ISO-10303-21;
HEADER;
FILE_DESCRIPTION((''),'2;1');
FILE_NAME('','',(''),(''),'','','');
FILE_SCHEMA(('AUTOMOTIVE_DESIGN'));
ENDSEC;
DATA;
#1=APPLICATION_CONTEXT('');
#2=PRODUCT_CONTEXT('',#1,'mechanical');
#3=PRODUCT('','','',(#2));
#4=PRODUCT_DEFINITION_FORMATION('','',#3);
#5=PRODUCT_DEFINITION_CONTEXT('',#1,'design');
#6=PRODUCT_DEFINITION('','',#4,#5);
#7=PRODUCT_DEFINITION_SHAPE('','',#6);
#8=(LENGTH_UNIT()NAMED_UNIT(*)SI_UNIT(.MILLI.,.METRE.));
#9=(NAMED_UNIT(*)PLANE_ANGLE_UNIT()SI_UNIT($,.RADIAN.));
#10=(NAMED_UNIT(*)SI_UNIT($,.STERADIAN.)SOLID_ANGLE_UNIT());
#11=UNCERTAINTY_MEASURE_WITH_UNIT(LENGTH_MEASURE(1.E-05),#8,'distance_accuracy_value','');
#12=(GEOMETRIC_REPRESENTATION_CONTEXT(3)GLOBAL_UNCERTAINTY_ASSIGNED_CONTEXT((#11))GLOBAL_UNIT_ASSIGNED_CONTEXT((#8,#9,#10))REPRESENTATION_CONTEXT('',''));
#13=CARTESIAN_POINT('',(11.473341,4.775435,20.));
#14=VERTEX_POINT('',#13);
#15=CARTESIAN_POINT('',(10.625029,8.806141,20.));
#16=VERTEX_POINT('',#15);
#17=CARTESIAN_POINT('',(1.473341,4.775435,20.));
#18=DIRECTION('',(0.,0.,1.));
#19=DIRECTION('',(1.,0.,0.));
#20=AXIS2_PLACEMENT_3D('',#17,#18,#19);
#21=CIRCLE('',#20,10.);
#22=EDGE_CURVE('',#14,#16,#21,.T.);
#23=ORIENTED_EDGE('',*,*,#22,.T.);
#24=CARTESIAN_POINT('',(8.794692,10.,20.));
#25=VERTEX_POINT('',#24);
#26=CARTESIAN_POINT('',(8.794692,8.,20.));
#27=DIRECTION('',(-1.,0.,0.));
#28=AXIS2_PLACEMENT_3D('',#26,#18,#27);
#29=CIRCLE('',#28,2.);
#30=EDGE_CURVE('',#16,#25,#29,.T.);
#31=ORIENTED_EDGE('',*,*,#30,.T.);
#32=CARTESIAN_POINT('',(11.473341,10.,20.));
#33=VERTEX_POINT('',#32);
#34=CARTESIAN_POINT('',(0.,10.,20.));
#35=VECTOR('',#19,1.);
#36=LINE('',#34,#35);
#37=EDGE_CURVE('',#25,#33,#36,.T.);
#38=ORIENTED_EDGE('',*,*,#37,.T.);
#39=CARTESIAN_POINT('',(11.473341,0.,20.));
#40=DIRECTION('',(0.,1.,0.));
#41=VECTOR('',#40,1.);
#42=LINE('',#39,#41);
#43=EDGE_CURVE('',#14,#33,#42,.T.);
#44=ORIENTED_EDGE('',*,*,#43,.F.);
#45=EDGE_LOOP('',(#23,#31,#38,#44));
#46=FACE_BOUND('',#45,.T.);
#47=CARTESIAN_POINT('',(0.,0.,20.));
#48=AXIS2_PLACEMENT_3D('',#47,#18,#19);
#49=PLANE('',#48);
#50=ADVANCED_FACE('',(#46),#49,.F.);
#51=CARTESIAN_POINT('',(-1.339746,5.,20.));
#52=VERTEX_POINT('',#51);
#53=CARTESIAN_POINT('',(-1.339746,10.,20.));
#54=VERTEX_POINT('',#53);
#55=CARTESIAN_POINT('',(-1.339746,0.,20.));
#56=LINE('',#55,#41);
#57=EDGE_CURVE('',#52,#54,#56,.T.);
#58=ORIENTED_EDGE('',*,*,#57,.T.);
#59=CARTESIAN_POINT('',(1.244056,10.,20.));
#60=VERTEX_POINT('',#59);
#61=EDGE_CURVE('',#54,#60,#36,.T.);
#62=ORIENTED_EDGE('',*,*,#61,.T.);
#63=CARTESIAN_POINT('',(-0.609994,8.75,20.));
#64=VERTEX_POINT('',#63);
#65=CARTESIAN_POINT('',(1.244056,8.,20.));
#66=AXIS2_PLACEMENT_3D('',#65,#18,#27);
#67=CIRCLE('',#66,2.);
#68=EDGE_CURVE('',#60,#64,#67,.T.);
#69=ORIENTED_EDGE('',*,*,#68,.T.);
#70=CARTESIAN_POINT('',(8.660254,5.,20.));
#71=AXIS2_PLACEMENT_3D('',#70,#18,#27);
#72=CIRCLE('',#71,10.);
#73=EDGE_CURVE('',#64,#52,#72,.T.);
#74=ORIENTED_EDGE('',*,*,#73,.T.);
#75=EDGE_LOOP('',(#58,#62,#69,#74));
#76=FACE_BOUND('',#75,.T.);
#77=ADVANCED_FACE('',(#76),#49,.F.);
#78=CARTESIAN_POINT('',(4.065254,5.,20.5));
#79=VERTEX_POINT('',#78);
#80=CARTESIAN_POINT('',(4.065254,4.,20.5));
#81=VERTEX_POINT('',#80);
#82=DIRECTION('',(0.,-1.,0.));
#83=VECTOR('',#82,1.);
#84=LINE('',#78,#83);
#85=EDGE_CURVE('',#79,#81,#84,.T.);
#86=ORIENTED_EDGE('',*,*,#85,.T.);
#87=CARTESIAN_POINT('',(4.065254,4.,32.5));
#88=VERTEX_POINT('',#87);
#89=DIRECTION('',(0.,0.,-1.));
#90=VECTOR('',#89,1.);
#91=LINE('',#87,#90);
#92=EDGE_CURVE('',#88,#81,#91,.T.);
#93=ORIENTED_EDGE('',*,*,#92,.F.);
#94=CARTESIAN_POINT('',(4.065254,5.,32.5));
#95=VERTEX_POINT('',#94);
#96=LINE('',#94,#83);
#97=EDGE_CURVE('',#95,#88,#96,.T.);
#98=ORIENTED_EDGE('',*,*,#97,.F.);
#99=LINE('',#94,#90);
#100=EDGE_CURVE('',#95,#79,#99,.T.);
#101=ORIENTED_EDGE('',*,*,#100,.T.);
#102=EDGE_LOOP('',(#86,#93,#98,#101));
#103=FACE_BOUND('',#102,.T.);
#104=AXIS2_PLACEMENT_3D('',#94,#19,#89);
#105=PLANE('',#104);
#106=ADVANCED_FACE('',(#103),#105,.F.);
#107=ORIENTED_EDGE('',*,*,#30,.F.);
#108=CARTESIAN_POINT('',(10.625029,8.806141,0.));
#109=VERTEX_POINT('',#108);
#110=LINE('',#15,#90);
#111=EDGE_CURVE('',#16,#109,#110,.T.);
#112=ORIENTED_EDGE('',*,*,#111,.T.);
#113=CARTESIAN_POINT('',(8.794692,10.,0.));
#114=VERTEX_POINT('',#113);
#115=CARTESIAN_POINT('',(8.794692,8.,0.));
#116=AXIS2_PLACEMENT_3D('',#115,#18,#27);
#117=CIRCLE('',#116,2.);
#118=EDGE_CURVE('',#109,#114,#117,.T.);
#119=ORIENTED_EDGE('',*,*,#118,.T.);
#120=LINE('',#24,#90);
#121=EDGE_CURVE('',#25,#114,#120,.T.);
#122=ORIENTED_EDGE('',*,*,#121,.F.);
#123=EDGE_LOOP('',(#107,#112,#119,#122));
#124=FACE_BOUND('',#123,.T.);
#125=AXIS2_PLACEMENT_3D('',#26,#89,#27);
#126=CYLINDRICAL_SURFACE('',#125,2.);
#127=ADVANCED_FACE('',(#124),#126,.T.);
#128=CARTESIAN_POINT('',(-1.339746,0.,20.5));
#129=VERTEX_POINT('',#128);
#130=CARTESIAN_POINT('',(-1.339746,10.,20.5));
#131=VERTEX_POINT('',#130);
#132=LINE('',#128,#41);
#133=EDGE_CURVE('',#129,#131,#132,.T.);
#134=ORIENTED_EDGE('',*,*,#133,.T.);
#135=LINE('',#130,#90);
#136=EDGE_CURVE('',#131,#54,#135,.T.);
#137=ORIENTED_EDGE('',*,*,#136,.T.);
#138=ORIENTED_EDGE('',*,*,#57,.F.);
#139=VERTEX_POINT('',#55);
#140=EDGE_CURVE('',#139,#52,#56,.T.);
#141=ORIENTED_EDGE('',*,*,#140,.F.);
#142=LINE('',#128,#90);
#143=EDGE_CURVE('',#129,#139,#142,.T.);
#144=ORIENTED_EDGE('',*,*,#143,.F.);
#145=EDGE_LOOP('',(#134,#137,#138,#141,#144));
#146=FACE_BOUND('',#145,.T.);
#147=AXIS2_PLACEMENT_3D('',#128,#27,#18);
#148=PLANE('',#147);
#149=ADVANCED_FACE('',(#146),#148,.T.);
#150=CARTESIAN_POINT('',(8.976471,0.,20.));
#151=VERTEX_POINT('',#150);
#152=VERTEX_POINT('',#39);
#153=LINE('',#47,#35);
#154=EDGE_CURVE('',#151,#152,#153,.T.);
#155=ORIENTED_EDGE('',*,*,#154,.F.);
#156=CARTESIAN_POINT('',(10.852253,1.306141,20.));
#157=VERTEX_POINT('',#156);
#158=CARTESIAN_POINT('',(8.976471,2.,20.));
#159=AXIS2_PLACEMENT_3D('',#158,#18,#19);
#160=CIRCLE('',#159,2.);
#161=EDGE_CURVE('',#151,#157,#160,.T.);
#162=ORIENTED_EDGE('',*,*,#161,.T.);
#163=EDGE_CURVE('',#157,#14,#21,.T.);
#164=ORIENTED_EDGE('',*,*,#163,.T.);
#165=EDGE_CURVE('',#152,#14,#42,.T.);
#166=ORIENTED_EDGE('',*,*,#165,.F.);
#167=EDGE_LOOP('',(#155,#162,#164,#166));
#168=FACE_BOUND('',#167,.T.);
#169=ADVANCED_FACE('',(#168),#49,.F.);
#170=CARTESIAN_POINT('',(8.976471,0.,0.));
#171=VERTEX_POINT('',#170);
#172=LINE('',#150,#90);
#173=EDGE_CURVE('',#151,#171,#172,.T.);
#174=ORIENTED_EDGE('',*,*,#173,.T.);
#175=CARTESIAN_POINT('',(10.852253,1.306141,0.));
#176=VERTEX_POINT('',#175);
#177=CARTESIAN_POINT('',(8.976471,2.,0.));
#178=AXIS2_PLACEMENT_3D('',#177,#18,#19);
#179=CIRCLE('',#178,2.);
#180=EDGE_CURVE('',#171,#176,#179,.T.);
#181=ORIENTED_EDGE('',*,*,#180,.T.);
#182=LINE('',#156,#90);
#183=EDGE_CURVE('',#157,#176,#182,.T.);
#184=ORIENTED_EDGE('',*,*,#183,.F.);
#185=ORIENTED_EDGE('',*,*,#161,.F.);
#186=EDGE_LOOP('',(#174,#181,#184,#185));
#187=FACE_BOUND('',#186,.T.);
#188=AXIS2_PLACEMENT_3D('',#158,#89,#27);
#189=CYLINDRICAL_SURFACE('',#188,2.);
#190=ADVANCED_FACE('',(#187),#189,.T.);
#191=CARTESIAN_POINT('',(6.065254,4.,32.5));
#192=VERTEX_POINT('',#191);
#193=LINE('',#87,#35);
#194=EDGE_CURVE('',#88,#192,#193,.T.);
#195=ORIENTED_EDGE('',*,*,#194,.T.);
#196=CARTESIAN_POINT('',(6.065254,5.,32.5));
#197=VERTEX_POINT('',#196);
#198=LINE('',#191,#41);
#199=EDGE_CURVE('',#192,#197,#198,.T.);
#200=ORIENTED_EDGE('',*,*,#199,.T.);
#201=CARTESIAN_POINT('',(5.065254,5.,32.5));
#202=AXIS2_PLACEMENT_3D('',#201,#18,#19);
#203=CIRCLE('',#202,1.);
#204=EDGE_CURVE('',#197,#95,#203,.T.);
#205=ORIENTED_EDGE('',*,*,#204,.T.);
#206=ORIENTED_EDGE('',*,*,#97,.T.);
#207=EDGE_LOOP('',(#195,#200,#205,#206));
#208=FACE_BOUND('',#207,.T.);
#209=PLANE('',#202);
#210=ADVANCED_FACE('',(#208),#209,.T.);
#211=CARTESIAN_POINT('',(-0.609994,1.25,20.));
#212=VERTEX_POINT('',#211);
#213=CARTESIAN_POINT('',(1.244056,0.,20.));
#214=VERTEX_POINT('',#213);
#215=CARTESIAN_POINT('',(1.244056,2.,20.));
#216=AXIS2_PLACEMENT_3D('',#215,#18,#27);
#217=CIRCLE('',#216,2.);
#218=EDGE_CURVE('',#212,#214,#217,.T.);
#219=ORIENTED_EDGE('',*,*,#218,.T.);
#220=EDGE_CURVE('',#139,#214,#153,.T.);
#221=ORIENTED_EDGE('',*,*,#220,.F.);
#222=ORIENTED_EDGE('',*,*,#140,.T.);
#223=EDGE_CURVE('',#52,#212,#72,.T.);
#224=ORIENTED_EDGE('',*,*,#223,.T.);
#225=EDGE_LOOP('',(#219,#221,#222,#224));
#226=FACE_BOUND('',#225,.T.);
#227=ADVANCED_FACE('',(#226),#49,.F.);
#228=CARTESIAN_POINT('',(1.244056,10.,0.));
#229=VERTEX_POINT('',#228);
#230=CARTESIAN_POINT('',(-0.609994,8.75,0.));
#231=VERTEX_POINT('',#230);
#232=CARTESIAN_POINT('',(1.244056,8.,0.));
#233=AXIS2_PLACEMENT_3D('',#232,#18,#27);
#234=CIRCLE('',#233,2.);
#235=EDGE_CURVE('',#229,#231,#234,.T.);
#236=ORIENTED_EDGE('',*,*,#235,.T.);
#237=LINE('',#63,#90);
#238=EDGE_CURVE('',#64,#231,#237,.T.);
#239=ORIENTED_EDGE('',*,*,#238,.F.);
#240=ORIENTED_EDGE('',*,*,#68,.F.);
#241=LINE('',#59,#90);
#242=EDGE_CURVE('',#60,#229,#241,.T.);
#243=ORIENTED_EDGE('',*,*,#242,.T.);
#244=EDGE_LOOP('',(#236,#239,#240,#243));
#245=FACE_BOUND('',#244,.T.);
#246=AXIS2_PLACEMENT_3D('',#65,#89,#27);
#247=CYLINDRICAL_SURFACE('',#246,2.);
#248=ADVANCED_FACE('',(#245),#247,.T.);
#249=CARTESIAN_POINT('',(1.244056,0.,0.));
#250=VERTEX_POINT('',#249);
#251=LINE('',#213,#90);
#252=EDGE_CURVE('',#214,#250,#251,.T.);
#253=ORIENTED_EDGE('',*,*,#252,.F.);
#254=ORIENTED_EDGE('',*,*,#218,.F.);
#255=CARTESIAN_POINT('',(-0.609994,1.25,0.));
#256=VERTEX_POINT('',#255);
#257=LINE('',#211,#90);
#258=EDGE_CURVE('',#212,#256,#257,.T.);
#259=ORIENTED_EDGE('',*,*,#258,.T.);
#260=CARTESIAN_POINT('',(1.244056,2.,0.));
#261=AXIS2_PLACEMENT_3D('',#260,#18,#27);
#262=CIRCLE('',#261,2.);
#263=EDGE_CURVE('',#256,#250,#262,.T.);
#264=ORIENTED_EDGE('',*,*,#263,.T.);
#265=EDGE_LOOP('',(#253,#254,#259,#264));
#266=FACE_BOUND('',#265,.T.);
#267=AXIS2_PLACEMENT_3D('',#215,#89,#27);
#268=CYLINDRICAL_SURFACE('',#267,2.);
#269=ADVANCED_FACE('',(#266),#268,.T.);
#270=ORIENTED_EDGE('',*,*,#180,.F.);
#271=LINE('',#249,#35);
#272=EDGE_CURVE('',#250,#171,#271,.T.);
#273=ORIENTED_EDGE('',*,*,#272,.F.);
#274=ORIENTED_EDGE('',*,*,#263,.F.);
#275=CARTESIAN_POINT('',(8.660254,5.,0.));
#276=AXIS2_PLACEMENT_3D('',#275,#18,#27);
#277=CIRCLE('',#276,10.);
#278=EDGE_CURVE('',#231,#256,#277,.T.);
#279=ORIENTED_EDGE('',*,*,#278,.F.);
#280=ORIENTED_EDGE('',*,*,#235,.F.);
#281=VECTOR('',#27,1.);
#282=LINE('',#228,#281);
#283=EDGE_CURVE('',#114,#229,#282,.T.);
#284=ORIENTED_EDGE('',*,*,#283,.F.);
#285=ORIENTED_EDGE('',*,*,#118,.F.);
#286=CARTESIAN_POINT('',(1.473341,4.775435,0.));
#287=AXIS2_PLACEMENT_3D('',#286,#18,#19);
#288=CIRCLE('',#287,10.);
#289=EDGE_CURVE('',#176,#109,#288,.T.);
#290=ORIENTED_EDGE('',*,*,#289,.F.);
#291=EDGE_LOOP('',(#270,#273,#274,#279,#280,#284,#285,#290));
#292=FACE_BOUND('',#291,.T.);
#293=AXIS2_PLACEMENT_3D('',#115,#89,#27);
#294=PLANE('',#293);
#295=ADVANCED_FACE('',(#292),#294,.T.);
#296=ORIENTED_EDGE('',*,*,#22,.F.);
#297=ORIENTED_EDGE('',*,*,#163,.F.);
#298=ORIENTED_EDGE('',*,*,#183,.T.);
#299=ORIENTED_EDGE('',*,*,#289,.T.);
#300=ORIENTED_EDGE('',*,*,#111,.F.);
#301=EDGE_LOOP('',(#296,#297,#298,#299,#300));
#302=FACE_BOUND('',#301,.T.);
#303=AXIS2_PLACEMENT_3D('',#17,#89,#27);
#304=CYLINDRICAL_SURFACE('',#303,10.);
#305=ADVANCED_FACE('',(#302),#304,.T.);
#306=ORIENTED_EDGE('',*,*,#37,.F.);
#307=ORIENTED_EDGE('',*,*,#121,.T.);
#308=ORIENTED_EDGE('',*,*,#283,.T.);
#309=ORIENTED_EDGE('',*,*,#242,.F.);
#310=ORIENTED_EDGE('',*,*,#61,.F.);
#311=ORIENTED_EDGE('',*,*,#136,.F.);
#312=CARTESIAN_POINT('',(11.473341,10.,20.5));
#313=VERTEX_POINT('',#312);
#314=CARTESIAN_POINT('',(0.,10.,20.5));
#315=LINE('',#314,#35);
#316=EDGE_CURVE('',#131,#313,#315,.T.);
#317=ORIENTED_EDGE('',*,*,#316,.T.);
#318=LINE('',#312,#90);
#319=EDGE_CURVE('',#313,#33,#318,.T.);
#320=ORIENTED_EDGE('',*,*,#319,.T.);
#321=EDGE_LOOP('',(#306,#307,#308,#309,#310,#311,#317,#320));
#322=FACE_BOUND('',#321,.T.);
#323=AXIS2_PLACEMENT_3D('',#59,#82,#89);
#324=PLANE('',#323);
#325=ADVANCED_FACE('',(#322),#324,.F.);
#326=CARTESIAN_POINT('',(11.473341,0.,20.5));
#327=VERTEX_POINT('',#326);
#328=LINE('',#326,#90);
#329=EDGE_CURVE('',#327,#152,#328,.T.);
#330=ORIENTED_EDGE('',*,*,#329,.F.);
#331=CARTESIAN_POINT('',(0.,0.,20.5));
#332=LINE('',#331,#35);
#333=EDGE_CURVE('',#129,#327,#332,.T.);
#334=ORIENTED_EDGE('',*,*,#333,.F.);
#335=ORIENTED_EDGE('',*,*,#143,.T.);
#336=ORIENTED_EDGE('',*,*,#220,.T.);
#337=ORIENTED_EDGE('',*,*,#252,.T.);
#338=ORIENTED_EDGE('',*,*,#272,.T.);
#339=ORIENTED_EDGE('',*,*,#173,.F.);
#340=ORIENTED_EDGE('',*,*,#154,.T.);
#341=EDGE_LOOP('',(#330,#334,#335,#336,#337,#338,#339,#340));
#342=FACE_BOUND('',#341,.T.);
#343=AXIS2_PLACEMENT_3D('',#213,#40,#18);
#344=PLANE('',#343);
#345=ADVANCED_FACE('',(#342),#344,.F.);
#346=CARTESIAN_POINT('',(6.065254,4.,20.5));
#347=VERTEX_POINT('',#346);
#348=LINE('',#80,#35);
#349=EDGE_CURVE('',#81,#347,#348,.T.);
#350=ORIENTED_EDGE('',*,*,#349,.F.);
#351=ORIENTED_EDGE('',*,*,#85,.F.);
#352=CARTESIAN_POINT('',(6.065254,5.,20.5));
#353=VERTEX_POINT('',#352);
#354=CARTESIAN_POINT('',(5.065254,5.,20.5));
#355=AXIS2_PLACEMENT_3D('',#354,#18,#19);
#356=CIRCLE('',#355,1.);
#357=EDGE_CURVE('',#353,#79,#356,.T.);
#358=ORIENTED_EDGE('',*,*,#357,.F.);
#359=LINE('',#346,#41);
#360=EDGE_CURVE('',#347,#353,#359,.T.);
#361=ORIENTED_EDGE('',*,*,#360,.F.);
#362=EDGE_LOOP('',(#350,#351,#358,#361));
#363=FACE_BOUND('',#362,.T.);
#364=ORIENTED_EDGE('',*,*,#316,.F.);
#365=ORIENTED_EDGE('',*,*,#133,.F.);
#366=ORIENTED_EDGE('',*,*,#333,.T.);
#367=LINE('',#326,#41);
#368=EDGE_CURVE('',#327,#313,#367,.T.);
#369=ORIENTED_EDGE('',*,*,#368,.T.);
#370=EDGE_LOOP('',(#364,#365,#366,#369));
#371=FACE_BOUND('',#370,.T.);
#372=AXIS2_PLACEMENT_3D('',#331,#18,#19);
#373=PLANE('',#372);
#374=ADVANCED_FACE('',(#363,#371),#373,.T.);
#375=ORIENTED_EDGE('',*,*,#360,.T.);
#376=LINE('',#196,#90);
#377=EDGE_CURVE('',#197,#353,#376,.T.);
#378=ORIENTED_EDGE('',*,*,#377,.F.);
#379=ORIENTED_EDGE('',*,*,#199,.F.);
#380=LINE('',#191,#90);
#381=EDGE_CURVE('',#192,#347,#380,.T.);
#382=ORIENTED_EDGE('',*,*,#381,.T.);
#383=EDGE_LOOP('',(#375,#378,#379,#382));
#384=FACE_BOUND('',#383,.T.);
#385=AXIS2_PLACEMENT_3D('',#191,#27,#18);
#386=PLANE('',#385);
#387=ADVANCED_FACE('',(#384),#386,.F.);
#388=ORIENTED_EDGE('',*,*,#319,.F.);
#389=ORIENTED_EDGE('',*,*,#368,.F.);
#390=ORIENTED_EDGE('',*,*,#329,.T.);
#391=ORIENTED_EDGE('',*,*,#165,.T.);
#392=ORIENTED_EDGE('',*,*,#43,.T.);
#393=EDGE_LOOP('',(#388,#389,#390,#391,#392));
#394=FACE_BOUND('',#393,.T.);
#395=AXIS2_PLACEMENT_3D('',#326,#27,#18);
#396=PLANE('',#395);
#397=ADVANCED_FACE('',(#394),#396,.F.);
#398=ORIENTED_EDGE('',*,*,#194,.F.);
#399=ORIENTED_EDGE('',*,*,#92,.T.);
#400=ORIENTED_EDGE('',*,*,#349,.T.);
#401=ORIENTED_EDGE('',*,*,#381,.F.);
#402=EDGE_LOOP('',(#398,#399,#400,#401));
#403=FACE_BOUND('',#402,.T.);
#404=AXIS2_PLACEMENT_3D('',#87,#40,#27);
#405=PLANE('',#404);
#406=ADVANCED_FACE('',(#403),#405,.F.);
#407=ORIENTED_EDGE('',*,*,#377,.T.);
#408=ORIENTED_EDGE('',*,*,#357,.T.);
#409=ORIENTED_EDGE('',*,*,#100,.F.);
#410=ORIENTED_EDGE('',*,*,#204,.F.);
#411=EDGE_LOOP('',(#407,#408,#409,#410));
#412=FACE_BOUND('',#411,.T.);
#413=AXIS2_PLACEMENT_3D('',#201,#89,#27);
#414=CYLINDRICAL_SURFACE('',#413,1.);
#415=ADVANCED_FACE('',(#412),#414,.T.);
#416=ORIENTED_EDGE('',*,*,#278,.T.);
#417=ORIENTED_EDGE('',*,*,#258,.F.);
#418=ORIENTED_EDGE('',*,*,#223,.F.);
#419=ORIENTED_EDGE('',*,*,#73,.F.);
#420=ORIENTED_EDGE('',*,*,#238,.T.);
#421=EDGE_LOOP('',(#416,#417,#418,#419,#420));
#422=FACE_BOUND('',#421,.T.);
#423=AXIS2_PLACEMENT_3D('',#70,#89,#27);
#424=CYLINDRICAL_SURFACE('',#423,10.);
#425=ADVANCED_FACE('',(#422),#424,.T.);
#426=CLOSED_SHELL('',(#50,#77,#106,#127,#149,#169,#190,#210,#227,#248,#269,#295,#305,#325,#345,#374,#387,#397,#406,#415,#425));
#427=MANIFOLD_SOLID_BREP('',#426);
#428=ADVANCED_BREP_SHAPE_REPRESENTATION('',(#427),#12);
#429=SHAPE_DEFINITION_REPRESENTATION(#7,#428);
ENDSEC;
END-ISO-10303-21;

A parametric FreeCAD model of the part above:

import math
import FreeCAD as App
import Part
import Sketcher
Q = App.Units.Quantity

doc = App.newDocument("Part")
body = doc.addObject("PartDesign::Body", "Body")

# Sketch on XY plane
sketch1 = body.newObject("Sketcher::SketchObject", "Sketch")
sketch1.AttachmentSupport = (doc.getObject("XY_Plane"), [""])
sketch1.MapMode = "FlatFace"
sketch1.addGeometry(Part.LineSegment(App.Vector(1.244056, 0, 0), App.Vector(8.976471, 0, 0)), False)
sketch1.addGeometry(Part.ArcOfCircle(Part.Circle(App.Vector(8.976471, 2, 0), App.Vector(0, 0, 1), 2), math.radians(-90), math.radians(-20.299616)), False)
sketch1.addGeometry(Part.ArcOfCircle(Part.Circle(App.Vector(1.473341, 4.775435, 0), App.Vector(0, 0, 1), 10), math.radians(-20.299616), math.radians(23.770279)), False)
sketch1.addGeometry(Part.ArcOfCircle(Part.Circle(App.Vector(8.794692, 8, 0), App.Vector(0, 0, 1), 2), math.radians(23.770279), math.radians(90)), False)
sketch1.addGeometry(Part.LineSegment(App.Vector(8.794692, 10, 0), App.Vector(1.244056, 10, 0)), False)
sketch1.addGeometry(Part.ArcOfCircle(Part.Circle(App.Vector(1.244056, 8, 0), App.Vector(0, 0, 1), 2), math.radians(90), math.radians(157.975687)), False)
sketch1.addGeometry(Part.ArcOfCircle(Part.Circle(App.Vector(8.660254, 5, 0), App.Vector(0, 0, 1), 10), math.radians(157.975687), math.radians(202.024313)), False)
sketch1.addGeometry(Part.ArcOfCircle(Part.Circle(App.Vector(1.244056, 2, 0), App.Vector(0, 0, 1), 2), math.radians(-157.975687), math.radians(-90)), False)
sketch1.addConstraint(Sketcher.Constraint("Tangent", 0, 2, 1, 1))
sketch1.addConstraint(Sketcher.Constraint("Tangent", 1, 2, 2, 1))
sketch1.addConstraint(Sketcher.Constraint("Tangent", 2, 2, 3, 1))
sketch1.addConstraint(Sketcher.Constraint("Tangent", 3, 2, 4, 1))
sketch1.addConstraint(Sketcher.Constraint("Tangent", 4, 2, 5, 1))
sketch1.addConstraint(Sketcher.Constraint("Tangent", 5, 2, 6, 1))
sketch1.addConstraint(Sketcher.Constraint("Tangent", 6, 2, 7, 1))
sketch1.addConstraint(Sketcher.Constraint("Tangent", 7, 2, 0, 1))
sketch1.addConstraint(Sketcher.Constraint("Horizontal", 0))
sketch1.addConstraint(Sketcher.Constraint("Horizontal", 4))
sketch1.addConstraint(Sketcher.Constraint("Equal", 1, 3))
sketch1.addConstraint(Sketcher.Constraint("Equal", 3, 5))
sketch1.addConstraint(Sketcher.Constraint("Equal", 2, 6))
sketch1.addConstraint(Sketcher.Constraint("Equal", 5, 7))
sketch1.addConstraint(Sketcher.Constraint("PointOnObject", 0, 2, -1))
sketch1.addConstraint(Sketcher.Constraint("Vertical", 5, 3, 7, 3))
sketch1.addConstraint(Sketcher.Constraint("Radius", 1, Q("2 mm")))
sketch1.addConstraint(Sketcher.Constraint("Radius", 2, Q("10 mm")))
sketch1.addConstraint(Sketcher.Constraint("DistanceY", -1, 1, 3, 3, Q("8 mm")))
sketch1.addConstraint(Sketcher.Constraint("DistanceX", 6, 3, 1, 2, Q("2.191999 mm")))
sketch1.addConstraint(Sketcher.Constraint("DistanceX", 0, 1, 0, 2, Q("7.732415 mm")))
sketch1.addConstraint(Sketcher.Constraint("DistanceX", -1, 1, 1, 3, Q("8.976471 mm")))
pad1 = body.newObject("PartDesign::Pad", "Pad")
pad1.Profile = sketch1
pad1.Length = 20

# Sketch on XY plane
sketch2 = body.newObject("Sketcher::SketchObject", "Sketch001")
sketch2.AttachmentSupport = (doc.getObject("XY_Plane"), [""])
sketch2.MapMode = "FlatFace"
sketch2.AttachmentOffset = App.Placement(App.Vector(0, 0, 20), App.Rotation())
sketch2.addGeometry(Part.LineSegment(App.Vector(-1.339746, 0, 0), App.Vector(11.473341, 0, 0)), False)
sketch2.addGeometry(Part.LineSegment(App.Vector(11.473341, 0, 0), App.Vector(11.473341, 10, 0)), False)
sketch2.addGeometry(Part.LineSegment(App.Vector(11.473341, 10, 0), App.Vector(-1.339746, 10, 0)), False)
sketch2.addGeometry(Part.LineSegment(App.Vector(-1.339746, 10, 0), App.Vector(-1.339746, 0, 0)), False)
sketch2.addConstraint(Sketcher.Constraint("Coincident", 0, 2, 1, 1))
sketch2.addConstraint(Sketcher.Constraint("Coincident", 1, 2, 2, 1))
sketch2.addConstraint(Sketcher.Constraint("Coincident", 2, 2, 3, 1))
sketch2.addConstraint(Sketcher.Constraint("Coincident", 3, 2, 0, 1))
sketch2.addConstraint(Sketcher.Constraint("Horizontal", 0))
sketch2.addConstraint(Sketcher.Constraint("Vertical", 1))
sketch2.addConstraint(Sketcher.Constraint("Horizontal", 2))
sketch2.addConstraint(Sketcher.Constraint("Vertical", 3))
sketch2.addConstraint(Sketcher.Constraint("PointOnObject", 0, 2, -1))
sketch2.addConstraint(Sketcher.Constraint("DistanceY", 1, 1, 1, 2, Q("10 mm")))
sketch2.addConstraint(Sketcher.Constraint("DistanceX", 0, 1, 0, 2, Q("12.813087 mm")))
sketch2.addConstraint(Sketcher.Constraint("DistanceX", -1, 1, 0, 2, Q("11.473341 mm")))
pad2 = body.newObject("PartDesign::Pad", "Pad001")
pad2.Profile = sketch2
pad2.Length = 0.5

# Sketch on XY plane
sketch3 = body.newObject("Sketcher::SketchObject", "Sketch002")
sketch3.AttachmentSupport = (doc.getObject("XY_Plane"), [""])
sketch3.MapMode = "FlatFace"
sketch3.AttachmentOffset = App.Placement(App.Vector(0, 0, 20.5), App.Rotation())
sketch3.addGeometry(Part.LineSegment(App.Vector(4.065254, 4, 0), App.Vector(6.065254, 4, 0)), False)
sketch3.addGeometry(Part.LineSegment(App.Vector(6.065254, 4, 0), App.Vector(6.065254, 5, 0)), False)
sketch3.addGeometry(Part.ArcOfCircle(Part.Circle(App.Vector(5.065254, 5, 0), App.Vector(0, 0, 1), 1), math.radians(0), math.radians(180)), False)
sketch3.addGeometry(Part.LineSegment(App.Vector(4.065254, 5, 0), App.Vector(4.065254, 4, 0)), False)
sketch3.addConstraint(Sketcher.Constraint("Coincident", 0, 2, 1, 1))
sketch3.addConstraint(Sketcher.Constraint("Tangent", 1, 2, 2, 1))
sketch3.addConstraint(Sketcher.Constraint("Tangent", 2, 2, 3, 1))
sketch3.addConstraint(Sketcher.Constraint("Coincident", 3, 2, 0, 1))
sketch3.addConstraint(Sketcher.Constraint("Horizontal", 0))
sketch3.addConstraint(Sketcher.Constraint("Vertical", 1))
sketch3.addConstraint(Sketcher.Constraint("Vertical", 3))
sketch3.addConstraint(Sketcher.Constraint("Radius", 2, Q("1 mm")))
sketch3.addConstraint(Sketcher.Constraint("DistanceY", 1, 1, 1, 2, Q("1 mm")))
sketch3.addConstraint(Sketcher.Constraint("DistanceY", -1, 1, 2, 3, Q("5 mm")))
sketch3.addConstraint(Sketcher.Constraint("DistanceX", -1, 1, 2, 3, Q("5.065254 mm")))
pad3 = body.newObject("PartDesign::Pad", "Pad002")
pad3.Profile = sketch3
pad3.Length = 12

doc.recompute()
